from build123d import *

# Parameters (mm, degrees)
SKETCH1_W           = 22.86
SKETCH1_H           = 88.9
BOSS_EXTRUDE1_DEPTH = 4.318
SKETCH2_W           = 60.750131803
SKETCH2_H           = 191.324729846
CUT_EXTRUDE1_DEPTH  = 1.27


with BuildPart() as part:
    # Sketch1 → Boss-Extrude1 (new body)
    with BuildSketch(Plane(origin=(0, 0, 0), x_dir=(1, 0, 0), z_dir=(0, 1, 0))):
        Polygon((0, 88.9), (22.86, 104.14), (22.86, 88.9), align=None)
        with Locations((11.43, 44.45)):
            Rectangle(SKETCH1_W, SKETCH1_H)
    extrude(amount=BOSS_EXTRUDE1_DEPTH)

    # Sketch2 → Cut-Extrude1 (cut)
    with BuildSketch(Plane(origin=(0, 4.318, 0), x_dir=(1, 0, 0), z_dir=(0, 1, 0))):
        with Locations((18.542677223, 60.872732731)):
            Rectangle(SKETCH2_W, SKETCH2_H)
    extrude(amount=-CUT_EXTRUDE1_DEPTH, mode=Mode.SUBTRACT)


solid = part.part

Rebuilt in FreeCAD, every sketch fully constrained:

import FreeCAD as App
import Part
import Sketcher
from FreeCAD import Vector
Q = App.Units.Quantity

doc = App.newDocument("Part")
body = doc.addObject("PartDesign::Body", "Body")

# Sketch on XZ plane
sketch1 = body.newObject("Sketcher::SketchObject", "Sketch")
sketch1.AttachmentSupport = (doc.getObject("XZ_Plane"), [""])
sketch1.MapMode = "FlatFace"
sketch1.addGeometry([
    Part.LineSegment(Vector(22.86, -104.14, 0), Vector(0, -88.9, 0)),
    Part.LineSegment(Vector(0, -88.9, 0), Vector(0, 0, 0)),
    Part.LineSegment(Vector(0, 0, 0), Vector(22.86, 0, 0)),
    Part.LineSegment(Vector(22.86, 0, 0), Vector(22.86, -104.14, 0)),
], False)
sketch1.addConstraint([
    Sketcher.Constraint("Coincident", 0, 2, 1, 1),
    Sketcher.Constraint("Coincident", 1, 2, 2, 1),
    Sketcher.Constraint("Coincident", 2, 2, 3, 1),
    Sketcher.Constraint("Coincident", 3, 2, 0, 1),
    Sketcher.Constraint("Vertical", 1),
    Sketcher.Constraint("Horizontal", 2),
    Sketcher.Constraint("Vertical", 3),
    Sketcher.Constraint("Coincident", 1, 2, -1, 1),
    Sketcher.Constraint("DistanceX", 2, 1, 2, 2, Q("0.9 in")),
    Sketcher.Constraint("DistanceY", 1, 1, 1, 2, Q("3.5 in")),
    Sketcher.Constraint("DistanceY", 3, 2, 3, 1, Q("4.1 in")),
])
pad1 = body.newObject("PartDesign::Pad", "Pad")
pad1.Profile = sketch1
pad1.Length = Q("0.17 in")
pad1.Reversed = True

# Sketch on XZ plane
sketch2 = body.newObject("Sketcher::SketchObject", "Sketch001")
sketch2.AttachmentSupport = (doc.getObject("XZ_Plane"), [""])
sketch2.MapMode = "FlatFace"
sketch2.AttachmentOffset = App.Placement(Vector(0, 0, -0.17 * 25.4), App.Rotation())
sketch2.addGeometry([
    Part.LineSegment(Vector(-11.832389, -156.535098, 0), Vector(-11.832389, 34.789632, 0)),
    Part.LineSegment(Vector(-11.832389, 34.789632, 0), Vector(48.917743, 34.789632, 0)),
    Part.LineSegment(Vector(48.917743, 34.789632, 0), Vector(48.917743, -156.535098, 0)),
    Part.LineSegment(Vector(48.917743, -156.535098, 0), Vector(-11.832389, -156.535098, 0)),
], False)
sketch2.addConstraint([
    Sketcher.Constraint("Coincident", 0, 2, 1, 1),
    Sketcher.Constraint("Coincident", 1, 2, 2, 1),
    Sketcher.Constraint("Coincident", 2, 2, 3, 1),
    Sketcher.Constraint("Coincident", 3, 2, 0, 1),
    Sketcher.Constraint("Vertical", 0),
    Sketcher.Constraint("Horizontal", 1),
    Sketcher.Constraint("Vertical", 2),
    Sketcher.Constraint("Horizontal", 3),
    Sketcher.Constraint("DistanceX", 1, 1, 1, 2, 60.750132),
    Sketcher.Constraint("DistanceY", 0, 1, 0, 2, 191.32473),
    Sketcher.Constraint("DistanceX", 0, 2, -1, 1, 11.832389),
    Sketcher.Constraint("DistanceY", -1, 1, 0, 2, 34.789632),
])
pocket1 = body.newObject("PartDesign::Pocket", "Pocket")
pocket1.Profile = sketch2
pocket1.Length = Q("0.05 in")
pocket1.Reversed = True

doc.recompute()
